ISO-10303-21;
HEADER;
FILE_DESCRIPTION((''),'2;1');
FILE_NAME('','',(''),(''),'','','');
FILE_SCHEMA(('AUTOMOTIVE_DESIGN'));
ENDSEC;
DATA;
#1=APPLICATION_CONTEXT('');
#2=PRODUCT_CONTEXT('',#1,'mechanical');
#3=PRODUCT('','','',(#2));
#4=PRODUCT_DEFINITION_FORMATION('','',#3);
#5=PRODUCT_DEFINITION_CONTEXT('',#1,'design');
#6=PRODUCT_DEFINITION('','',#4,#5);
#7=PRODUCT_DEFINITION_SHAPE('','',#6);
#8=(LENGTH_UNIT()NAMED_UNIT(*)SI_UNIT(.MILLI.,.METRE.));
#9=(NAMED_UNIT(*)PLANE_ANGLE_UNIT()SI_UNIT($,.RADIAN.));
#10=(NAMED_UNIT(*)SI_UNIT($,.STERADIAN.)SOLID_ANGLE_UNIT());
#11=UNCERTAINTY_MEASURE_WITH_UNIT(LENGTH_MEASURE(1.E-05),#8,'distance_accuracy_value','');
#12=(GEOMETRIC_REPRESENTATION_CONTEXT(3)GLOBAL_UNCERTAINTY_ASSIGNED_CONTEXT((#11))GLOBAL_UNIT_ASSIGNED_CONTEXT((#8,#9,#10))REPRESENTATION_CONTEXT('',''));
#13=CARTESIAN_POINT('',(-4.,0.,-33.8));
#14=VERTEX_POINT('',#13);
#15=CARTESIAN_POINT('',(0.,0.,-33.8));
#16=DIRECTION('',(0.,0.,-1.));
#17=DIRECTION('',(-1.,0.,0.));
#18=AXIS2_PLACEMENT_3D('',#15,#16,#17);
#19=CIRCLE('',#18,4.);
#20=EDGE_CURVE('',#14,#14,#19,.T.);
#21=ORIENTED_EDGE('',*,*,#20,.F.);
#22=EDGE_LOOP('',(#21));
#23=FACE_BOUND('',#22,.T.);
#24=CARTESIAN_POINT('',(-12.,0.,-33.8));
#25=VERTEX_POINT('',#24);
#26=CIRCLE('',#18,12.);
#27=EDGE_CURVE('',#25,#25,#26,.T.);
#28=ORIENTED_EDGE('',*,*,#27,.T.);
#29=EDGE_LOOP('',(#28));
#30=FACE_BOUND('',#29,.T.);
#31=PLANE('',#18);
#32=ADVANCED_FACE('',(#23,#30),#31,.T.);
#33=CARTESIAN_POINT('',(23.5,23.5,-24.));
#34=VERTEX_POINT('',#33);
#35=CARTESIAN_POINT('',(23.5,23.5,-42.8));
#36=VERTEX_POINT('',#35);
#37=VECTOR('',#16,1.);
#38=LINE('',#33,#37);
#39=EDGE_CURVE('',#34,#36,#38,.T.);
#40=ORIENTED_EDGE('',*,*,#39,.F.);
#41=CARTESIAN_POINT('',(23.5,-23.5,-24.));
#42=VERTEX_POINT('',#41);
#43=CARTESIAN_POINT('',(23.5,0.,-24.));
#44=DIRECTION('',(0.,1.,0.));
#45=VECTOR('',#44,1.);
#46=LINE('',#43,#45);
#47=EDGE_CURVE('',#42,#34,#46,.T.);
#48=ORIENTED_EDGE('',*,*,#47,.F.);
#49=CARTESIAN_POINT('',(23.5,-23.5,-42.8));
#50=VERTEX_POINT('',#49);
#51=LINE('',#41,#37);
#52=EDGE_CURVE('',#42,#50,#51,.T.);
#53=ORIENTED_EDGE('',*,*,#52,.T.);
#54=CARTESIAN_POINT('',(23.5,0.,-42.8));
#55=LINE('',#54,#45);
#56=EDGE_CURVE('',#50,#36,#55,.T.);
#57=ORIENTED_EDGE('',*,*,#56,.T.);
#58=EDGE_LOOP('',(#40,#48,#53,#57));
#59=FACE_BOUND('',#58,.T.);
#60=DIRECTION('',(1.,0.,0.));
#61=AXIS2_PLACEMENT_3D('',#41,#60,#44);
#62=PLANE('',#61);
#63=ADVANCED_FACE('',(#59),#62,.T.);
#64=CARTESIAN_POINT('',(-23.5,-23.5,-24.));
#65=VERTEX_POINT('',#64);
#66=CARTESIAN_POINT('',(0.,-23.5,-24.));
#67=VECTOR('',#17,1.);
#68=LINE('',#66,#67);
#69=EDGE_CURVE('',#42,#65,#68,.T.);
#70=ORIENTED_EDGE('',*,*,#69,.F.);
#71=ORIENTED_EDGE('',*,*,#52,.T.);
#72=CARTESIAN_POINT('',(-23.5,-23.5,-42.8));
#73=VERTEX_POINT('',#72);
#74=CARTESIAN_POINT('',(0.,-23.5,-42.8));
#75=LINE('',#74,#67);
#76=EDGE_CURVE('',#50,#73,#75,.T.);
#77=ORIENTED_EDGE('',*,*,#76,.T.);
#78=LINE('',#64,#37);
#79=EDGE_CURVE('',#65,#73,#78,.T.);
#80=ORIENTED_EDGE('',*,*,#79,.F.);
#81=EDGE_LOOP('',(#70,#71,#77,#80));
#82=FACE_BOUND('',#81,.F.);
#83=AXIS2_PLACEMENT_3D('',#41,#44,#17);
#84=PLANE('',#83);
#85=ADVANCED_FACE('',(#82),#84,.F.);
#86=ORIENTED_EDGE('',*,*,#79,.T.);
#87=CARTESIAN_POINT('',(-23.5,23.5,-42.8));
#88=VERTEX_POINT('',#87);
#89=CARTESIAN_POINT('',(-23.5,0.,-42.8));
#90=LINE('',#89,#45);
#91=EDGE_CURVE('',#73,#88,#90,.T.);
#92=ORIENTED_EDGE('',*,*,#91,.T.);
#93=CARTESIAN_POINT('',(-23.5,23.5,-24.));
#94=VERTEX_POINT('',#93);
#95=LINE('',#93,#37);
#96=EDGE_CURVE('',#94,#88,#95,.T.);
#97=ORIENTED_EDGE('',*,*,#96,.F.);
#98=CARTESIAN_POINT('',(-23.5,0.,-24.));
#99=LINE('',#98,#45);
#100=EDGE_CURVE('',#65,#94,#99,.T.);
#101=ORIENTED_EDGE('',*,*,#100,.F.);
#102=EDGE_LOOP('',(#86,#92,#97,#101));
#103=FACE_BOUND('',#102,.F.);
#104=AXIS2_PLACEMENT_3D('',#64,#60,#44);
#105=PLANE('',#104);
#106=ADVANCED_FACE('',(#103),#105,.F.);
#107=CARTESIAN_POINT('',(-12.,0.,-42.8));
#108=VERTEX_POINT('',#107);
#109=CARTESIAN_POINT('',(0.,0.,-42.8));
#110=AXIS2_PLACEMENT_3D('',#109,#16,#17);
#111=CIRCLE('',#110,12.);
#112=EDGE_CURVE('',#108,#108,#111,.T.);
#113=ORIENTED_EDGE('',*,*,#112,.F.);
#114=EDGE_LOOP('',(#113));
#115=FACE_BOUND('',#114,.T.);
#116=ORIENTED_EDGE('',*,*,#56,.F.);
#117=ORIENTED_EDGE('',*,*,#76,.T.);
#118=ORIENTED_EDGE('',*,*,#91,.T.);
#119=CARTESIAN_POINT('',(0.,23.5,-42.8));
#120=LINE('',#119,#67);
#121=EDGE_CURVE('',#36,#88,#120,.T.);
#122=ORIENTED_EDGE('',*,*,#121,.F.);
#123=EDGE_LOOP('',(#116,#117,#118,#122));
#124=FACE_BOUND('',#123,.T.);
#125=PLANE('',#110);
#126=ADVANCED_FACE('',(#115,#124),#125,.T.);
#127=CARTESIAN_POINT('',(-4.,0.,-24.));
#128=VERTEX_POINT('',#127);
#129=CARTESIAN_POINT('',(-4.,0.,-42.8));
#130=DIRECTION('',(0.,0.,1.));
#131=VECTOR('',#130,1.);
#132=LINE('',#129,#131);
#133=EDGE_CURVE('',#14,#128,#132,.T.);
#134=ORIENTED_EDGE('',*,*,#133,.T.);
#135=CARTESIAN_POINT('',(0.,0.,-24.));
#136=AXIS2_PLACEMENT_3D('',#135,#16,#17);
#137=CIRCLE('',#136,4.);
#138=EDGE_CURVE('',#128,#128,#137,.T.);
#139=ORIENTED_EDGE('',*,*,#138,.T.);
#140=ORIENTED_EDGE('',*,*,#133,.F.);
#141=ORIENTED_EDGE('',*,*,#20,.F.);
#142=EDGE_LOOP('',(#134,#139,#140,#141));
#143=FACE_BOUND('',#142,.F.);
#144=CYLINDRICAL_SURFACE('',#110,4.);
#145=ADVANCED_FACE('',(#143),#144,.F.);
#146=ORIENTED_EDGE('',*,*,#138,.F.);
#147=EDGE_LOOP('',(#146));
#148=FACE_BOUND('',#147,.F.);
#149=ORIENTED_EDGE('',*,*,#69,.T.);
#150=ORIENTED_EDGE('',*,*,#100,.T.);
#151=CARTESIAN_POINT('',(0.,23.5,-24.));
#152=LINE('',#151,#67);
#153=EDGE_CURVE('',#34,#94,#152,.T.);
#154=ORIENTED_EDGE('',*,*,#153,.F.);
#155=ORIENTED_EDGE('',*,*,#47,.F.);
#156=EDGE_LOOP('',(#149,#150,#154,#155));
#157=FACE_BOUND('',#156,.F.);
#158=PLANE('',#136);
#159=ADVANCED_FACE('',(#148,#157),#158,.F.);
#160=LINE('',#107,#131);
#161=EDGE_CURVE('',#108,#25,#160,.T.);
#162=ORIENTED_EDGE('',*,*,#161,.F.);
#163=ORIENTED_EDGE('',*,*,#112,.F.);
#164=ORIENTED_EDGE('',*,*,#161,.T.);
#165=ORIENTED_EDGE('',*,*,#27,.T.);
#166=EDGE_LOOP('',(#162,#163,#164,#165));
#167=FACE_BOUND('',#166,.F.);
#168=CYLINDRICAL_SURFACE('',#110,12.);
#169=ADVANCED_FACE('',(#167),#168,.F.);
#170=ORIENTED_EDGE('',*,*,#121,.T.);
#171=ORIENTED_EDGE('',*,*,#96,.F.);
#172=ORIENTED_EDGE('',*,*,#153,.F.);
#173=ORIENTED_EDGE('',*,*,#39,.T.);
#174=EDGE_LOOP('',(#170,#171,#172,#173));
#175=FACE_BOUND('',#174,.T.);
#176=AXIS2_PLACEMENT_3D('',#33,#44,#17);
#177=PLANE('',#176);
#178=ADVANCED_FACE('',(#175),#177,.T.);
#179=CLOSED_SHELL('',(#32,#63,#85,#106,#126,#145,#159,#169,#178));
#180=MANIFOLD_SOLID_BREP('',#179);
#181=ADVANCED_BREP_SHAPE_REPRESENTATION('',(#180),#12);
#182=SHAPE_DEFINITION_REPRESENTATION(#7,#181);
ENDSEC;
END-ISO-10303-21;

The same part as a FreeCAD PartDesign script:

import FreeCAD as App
import Part
import Sketcher

doc = App.newDocument("Part")
body = doc.addObject("PartDesign::Body", "Body")

sketch1 = body.newObject("Sketcher::SketchObject", "Sketch")
sketch1.AttachmentSupport = (doc.getObject("XY_Plane"), [""])
sketch1.MapMode = "FlatFace"
sketch1.AttachmentOffset = App.Placement(App.Vector(0, 0, -24), App.Rotation())
sketch1.addGeometry([
    Part.LineSegment(App.Vector(24, 24, 0), App.Vector(24, -24, 0)),
    Part.LineSegment(App.Vector(24, -24, 0), App.Vector(-24, -24, 0)),
    Part.LineSegment(App.Vector(-24, -24, 0), App.Vector(-24, 24, 0)),
    Part.LineSegment(App.Vector(-24, 24, 0), App.Vector(24, 24, 0)),
], False)
sketch1.addConstraint([
    Sketcher.Constraint("Coincident", 0, 2, 1, 1),
    Sketcher.Constraint("Coincident", 1, 2, 2, 1),
    Sketcher.Constraint("Coincident", 2, 2, 3, 1),
    Sketcher.Constraint("Coincident", 3, 2, 0, 1),
    Sketcher.Constraint("Vertical", 0),
    Sketcher.Constraint("Horizontal", 1),
    Sketcher.Constraint("Vertical", 2),
    Sketcher.Constraint("Horizontal", 3),
    Sketcher.Constraint("Symmetric", 0, 2, 2, 2, -1, 1),
    Sketcher.Constraint("Equal", 3, 0),
    Sketcher.Constraint("DistanceX", 1, 2, 1, 1, 47.0),
])
pad1 = body.newObject("PartDesign::Pad", "Pad")
pad1.Profile = sketch1
pad1.Length = 18.8
pad1.Reversed = True

sketch2 = body.newObject("Sketcher::SketchObject", "Sketch001")
sketch2.AttachmentSupport = (doc.getObject("XY_Plane"), [""])
sketch2.MapMode = "FlatFace"
sketch2.AttachmentOffset = App.Placement(App.Vector(0, 0, -42.8), App.Rotation())
sketch2.addGeometry(Part.Circle(App.Vector(0, 0, 0), App.Vector(0, 0, 1), 4), False)
sketch2.addConstraint([
    Sketcher.Constraint("Coincident", 0, 3, -1, 1),
    Sketcher.Constraint("Diameter", 0, 8.0),
])
pocket1 = body.newObject("PartDesign::Pocket", "Pocket")
pocket1.Profile = sketch2
pocket1.Type = "ThroughAll"
pocket1.Reversed = True

sketch3 = body.newObject("Sketcher::SketchObject", "Sketch002")
sketch3.AttachmentSupport = (doc.getObject("XY_Plane"), [""])
sketch3.MapMode = "FlatFace"
sketch3.AttachmentOffset = App.Placement(App.Vector(0, 0, -42.8), App.Rotation())
sketch3.addGeometry(Part.Circle(App.Vector(0, 0, 0), App.Vector(0, 0, 1), 12), False)
sketch3.addConstraint([
    Sketcher.Constraint("Coincident", 0, 3, -1, 1),
    Sketcher.Constraint("Diameter", 0, 24.0),
])
pocket2 = body.newObject("PartDesign::Pocket", "Pocket001")
pocket2.Profile = sketch3
pocket2.Length = 9
pocket2.Reversed = True

doc.recompute()
